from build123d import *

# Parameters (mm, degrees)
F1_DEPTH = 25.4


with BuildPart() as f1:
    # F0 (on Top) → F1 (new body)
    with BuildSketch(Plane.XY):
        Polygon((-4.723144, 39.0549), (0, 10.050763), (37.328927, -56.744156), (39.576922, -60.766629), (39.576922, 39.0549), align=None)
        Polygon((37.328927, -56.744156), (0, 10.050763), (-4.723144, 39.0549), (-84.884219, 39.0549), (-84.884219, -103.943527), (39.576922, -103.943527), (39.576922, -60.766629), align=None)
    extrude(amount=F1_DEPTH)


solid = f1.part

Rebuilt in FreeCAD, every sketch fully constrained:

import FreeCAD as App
import Part
import Sketcher

V = App.Vector
Q = App.Units.Quantity


def add_polygon(sketch, points):
    """Adds a closed chain of lines whose ends are joined by coincident constraints."""
    first, n = sketch.GeometryCount, len(points)
    for a, b in zip(points, points[1:] + points[:1]):
        sketch.addGeometry(Part.LineSegment(App.Vector(*a, 0), App.Vector(*b, 0)), False)
    for i in range(n):
        sketch.addConstraint(Sketcher.Constraint("Coincident", first + i, 2, first + (i + 1) % n, 1))

doc = App.newDocument("Part")
body = doc.addObject("PartDesign::Body", "Body")

# Sketch on XY plane
sketch1 = body.newObject("Sketcher::SketchObject", "Sketch")
sketch1.AttachmentSupport = (doc.getObject("XY_Plane"), [""])
sketch1.MapMode = "FlatFace"
add_polygon(sketch1, [(40, 39), (-85, 39), (-85, -104), (40, -104)])  # lines 0-3
sketch1.addConstraint(Sketcher.Constraint("Horizontal", 0))
sketch1.addConstraint(Sketcher.Constraint("Vertical", 1))
sketch1.addConstraint(Sketcher.Constraint("Horizontal", 2))
sketch1.addConstraint(Sketcher.Constraint("Vertical", 3))
sketch1.addConstraint(Sketcher.Constraint("DistanceX", 0, 2, 0, 1, 124.461141))
sketch1.addConstraint(Sketcher.Constraint("DistanceY", -1, 1, 0, 2, 39.0549))
sketch1.addConstraint(Sketcher.Constraint("DistanceY", 1, 2, 1, 1, 142.998427))
sketch1.addConstraint(Sketcher.Constraint("DistanceX", 0, 2, -1, 1, 84.884219))
pad1 = body.newObject("PartDesign::Pad", "Pad")
pad1.Profile = sketch1
pad1.Length = Q("1 in")

doc.recompute()
